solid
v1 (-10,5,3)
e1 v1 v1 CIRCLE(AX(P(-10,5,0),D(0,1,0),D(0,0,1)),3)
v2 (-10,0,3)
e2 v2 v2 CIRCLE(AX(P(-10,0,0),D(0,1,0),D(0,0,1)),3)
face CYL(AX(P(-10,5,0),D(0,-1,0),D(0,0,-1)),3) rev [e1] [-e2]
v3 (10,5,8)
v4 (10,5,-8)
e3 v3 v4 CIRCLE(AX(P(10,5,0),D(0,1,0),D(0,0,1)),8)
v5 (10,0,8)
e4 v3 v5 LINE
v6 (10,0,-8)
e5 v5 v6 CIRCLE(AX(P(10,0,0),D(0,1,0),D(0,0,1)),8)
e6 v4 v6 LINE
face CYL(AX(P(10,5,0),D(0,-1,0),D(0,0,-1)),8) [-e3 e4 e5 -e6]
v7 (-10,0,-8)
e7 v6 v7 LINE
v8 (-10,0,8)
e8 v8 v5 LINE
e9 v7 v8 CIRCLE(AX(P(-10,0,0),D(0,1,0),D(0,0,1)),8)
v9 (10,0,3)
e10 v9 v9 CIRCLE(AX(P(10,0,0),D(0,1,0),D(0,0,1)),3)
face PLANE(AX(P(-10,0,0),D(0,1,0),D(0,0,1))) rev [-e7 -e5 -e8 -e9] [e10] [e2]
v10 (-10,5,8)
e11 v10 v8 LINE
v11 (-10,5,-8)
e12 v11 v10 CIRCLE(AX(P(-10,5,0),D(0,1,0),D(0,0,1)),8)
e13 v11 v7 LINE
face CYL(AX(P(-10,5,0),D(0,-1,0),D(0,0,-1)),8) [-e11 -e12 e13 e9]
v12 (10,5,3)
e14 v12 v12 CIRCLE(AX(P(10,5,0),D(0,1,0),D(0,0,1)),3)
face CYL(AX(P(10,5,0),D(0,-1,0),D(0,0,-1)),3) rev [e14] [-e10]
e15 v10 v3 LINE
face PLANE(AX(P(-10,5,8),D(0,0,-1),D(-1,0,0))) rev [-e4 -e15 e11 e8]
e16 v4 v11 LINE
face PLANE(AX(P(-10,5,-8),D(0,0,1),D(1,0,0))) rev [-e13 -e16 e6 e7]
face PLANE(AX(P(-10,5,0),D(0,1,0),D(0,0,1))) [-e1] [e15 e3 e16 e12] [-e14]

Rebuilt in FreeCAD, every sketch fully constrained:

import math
import FreeCAD as App
import Part
import Sketcher
from FreeCAD import Vector
Q = App.Units.Quantity

doc = App.newDocument("Part")
params = doc.addObject("Spreadsheet::Sheet", "Params")
for row, (alias, value) in enumerate([
    ("sketch1_diameter", "6 mm"),
    ("sketch1_radius", "8 mm"),
    ("sketch1_width", "20 mm"),
    ("pad1_length", "5 mm"),
], start=1):
    params.set(f"A{row}", alias)
    params.set(f"B{row}", "=" + value)
    params.setAlias(f"B{row}", alias)

body = doc.addObject("PartDesign::Body", "Body")

sketch1 = doc.addObject("Sketcher::SketchObject", "Sketch")
body.addObject(sketch1)
sketch1.AttachmentSupport = (doc.XZ_Plane, [""])
sketch1.MapMode = "FlatFace"
sketch1.addGeometry(Part.LineSegment(Vector(10, -8, 0), Vector(-10, -8, 0)), False)
sketch1.addGeometry(Part.ArcOfCircle(Part.Circle(Vector(-10, 0, 0), Vector(0, 0, 1), 8), math.radians(90), math.radians(270)), False)
sketch1.addGeometry(Part.LineSegment(Vector(-10, 8, 0), Vector(10, 8, 0)), False)
sketch1.addGeometry(Part.ArcOfCircle(Part.Circle(Vector(10, 0, 0), Vector(0, 0, 1), 8), math.radians(-90), math.radians(90)), False)
sketch1.addGeometry(Part.Circle(Vector(10, 0, 0), Vector(0, 0, 1), 3), False)
sketch1.addGeometry(Part.Circle(Vector(-10, 0, 0), Vector(0, 0, 1), 3), False)
sketch1.addConstraint(Sketcher.Constraint("Tangent", 0, 2, 1, 2))
sketch1.addConstraint(Sketcher.Constraint("Tangent", 1, 1, 2, 1))
sketch1.addConstraint(Sketcher.Constraint("Tangent", 2, 2, 3, 2))
sketch1.addConstraint(Sketcher.Constraint("Tangent", 3, 1, 0, 1))
sketch1.addConstraint(Sketcher.Constraint("Horizontal", 0))
sketch1.addConstraint(Sketcher.Constraint("Horizontal", 2))
sketch1.addConstraint(Sketcher.Constraint("Coincident", 4, 3, 3, 3))
sketch1.addConstraint(Sketcher.Constraint("Coincident", 5, 3, 1, 3))
sketch1.addConstraint(Sketcher.Constraint("Equal", 4, 5))
sketch1.addConstraint(Sketcher.Constraint("Symmetric", 1, 3, 3, 3, -1, 1))
sketch1.addConstraint(Sketcher.Constraint("Diameter", 4, Q("6 mm")))
sketch1.addConstraint(Sketcher.Constraint("Radius", 1, Q("8 mm")))
sketch1.addConstraint(Sketcher.Constraint("DistanceX", 0, 2, 0, 1, Q("20 mm")))
sketch1.setExpression("Constraints[10]", "Params.sketch1_diameter")
sketch1.setExpression("Constraints[11]", "Params.sketch1_radius")
sketch1.setExpression("Constraints[12]", "Params.sketch1_width")
pad1 = doc.addObject("PartDesign::Pad", "Pad")
body.addObject(pad1)
pad1.Profile = sketch1
pad1.setExpression("Length", "Params.pad1_length")
pad1.Reversed = True

doc.recompute()
